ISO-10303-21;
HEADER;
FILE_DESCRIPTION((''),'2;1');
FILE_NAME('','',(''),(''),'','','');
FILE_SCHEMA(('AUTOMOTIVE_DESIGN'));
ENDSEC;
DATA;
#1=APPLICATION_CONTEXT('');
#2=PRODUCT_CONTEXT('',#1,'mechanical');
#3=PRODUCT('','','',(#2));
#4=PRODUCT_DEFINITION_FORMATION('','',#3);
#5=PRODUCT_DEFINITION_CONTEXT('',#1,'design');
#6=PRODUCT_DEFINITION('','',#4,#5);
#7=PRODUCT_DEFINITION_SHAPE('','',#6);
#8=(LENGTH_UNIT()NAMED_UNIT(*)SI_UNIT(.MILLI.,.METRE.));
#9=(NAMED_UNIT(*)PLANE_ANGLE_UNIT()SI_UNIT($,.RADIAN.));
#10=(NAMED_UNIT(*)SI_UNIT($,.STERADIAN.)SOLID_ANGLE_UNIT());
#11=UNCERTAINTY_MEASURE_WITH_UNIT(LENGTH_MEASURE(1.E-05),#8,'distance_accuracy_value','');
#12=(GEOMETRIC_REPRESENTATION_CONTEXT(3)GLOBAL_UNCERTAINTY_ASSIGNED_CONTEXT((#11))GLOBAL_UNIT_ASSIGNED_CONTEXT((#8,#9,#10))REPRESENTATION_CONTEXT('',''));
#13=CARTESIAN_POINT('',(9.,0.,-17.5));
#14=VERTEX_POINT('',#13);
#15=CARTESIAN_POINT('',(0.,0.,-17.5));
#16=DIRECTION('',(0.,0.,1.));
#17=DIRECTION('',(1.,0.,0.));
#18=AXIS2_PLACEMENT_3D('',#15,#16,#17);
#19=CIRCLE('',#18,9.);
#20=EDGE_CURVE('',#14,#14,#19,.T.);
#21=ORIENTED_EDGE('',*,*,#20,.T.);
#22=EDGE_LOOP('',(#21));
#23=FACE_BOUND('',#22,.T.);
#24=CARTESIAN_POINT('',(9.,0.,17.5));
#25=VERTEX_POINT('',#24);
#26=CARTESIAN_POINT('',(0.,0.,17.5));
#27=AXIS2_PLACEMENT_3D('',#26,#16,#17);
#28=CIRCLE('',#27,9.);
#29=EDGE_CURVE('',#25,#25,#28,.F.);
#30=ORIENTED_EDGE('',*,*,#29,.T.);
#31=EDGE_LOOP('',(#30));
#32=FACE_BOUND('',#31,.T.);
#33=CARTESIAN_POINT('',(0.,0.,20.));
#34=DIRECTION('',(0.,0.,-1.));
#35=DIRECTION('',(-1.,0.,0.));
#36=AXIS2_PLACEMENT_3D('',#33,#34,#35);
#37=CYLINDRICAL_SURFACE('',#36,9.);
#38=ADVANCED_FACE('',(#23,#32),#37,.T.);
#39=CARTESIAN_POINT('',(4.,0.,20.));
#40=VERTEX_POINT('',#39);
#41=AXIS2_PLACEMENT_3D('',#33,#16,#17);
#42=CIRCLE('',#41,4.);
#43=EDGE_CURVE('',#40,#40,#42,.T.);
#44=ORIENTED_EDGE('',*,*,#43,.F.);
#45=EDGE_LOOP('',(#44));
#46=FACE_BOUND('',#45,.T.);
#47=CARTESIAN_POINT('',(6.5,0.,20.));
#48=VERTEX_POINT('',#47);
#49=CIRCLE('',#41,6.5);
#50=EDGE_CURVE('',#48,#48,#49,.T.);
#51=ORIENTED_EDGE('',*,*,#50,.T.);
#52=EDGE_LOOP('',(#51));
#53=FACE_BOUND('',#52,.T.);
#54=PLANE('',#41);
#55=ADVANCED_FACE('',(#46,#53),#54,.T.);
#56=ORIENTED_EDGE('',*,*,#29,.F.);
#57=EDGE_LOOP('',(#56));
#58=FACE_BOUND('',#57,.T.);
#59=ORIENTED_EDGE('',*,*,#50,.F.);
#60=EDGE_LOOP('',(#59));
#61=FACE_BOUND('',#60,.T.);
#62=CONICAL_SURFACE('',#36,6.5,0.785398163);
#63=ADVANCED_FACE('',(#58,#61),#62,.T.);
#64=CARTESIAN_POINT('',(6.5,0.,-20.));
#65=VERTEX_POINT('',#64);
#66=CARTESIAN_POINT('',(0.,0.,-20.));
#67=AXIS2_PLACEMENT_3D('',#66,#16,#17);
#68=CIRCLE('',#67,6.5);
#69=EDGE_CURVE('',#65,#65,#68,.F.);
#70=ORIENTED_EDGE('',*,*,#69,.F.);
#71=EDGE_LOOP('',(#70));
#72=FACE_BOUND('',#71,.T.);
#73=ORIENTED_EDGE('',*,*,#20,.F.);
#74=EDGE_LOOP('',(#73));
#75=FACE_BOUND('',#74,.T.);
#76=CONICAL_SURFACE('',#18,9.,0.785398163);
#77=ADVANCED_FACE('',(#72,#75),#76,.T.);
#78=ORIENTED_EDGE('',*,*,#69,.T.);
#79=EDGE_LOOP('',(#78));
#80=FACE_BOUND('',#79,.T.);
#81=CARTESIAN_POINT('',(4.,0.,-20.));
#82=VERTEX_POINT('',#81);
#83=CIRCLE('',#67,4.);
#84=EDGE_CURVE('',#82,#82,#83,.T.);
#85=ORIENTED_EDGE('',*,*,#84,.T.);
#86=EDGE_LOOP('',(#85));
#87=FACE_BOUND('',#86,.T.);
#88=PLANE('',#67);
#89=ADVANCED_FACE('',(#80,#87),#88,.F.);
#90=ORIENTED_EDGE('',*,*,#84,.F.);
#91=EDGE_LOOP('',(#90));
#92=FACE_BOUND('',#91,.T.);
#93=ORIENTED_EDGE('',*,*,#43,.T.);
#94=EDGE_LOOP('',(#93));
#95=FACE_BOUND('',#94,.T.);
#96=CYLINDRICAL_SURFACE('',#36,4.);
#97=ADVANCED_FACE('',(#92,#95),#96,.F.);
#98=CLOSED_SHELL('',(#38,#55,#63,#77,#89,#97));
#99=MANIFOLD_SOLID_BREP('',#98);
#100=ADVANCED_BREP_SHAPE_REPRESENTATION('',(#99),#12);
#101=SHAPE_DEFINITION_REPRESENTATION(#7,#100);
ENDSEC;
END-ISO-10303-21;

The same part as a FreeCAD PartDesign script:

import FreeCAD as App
import Part
import Sketcher
Q = App.Units.Quantity


def edges_at(feature, points):
    """Names of the edges that pass closest to the given points."""
    edges = feature.Shape.Edges
    near = lambda p: min(range(len(edges)), key=lambda i: edges[i].distToShape(Part.Vertex(*p))[0])
    return sorted({f"Edge{near(p) + 1}" for p in points})

doc = App.newDocument("Part")
params = doc.addObject("Spreadsheet::Sheet", "Params")
for row, (alias, value) in enumerate([
    ("sketch1_diameter", "18 mm"),
    ("sketch1_diameter2", "8 mm"),
    ("pad1_length", "40 mm"),
    ("chamfer_size", "2.5 mm"),
], start=1):
    params.set(f"A{row}", alias)
    params.set(f"B{row}", "=" + value)
    params.setAlias(f"B{row}", alias)

body = doc.addObject("PartDesign::Body", "Body")

sketch1 = doc.addObject("Sketcher::SketchObject", "Sketch")
body.addObject(sketch1)
sketch1.AttachmentSupport = (doc.XY_Plane, [""])
sketch1.MapMode = "FlatFace"
sketch1.addGeometry(Part.Circle(App.Vector(0, 0, 0), App.Vector(0, 0, 1), 9), False)
sketch1.addGeometry(Part.Circle(App.Vector(0, 0, 0), App.Vector(0, 0, 1), 4), False)
sketch1.addConstraint(Sketcher.Constraint("Coincident", 0, 3, -1, 1))
sketch1.addConstraint(Sketcher.Constraint("Coincident", 1, 3, -1, 1))
sketch1.addConstraint(Sketcher.Constraint("Diameter", 0, Q("18 mm")))
sketch1.addConstraint(Sketcher.Constraint("Diameter", 1, Q("8 mm")))
sketch1.setExpression("Constraints[2]", "Params.sketch1_diameter")
sketch1.setExpression("Constraints[3]", "Params.sketch1_diameter2")
pad1 = doc.addObject("PartDesign::Pad", "Pad")
body.addObject(pad1)
pad1.Profile = sketch1
pad1.setExpression("Length", "Params.pad1_length")
pad1.Midplane = True
doc.recompute()

chamfer = doc.addObject("PartDesign::Chamfer", "Chamfer")
body.addObject(chamfer)
chamfer.Base = (pad1, edges_at(pad1, [(-9, 0, -20), (-9, 0, 20)]))
chamfer.setExpression("Size", "Params.chamfer_size")

doc.recompute()
